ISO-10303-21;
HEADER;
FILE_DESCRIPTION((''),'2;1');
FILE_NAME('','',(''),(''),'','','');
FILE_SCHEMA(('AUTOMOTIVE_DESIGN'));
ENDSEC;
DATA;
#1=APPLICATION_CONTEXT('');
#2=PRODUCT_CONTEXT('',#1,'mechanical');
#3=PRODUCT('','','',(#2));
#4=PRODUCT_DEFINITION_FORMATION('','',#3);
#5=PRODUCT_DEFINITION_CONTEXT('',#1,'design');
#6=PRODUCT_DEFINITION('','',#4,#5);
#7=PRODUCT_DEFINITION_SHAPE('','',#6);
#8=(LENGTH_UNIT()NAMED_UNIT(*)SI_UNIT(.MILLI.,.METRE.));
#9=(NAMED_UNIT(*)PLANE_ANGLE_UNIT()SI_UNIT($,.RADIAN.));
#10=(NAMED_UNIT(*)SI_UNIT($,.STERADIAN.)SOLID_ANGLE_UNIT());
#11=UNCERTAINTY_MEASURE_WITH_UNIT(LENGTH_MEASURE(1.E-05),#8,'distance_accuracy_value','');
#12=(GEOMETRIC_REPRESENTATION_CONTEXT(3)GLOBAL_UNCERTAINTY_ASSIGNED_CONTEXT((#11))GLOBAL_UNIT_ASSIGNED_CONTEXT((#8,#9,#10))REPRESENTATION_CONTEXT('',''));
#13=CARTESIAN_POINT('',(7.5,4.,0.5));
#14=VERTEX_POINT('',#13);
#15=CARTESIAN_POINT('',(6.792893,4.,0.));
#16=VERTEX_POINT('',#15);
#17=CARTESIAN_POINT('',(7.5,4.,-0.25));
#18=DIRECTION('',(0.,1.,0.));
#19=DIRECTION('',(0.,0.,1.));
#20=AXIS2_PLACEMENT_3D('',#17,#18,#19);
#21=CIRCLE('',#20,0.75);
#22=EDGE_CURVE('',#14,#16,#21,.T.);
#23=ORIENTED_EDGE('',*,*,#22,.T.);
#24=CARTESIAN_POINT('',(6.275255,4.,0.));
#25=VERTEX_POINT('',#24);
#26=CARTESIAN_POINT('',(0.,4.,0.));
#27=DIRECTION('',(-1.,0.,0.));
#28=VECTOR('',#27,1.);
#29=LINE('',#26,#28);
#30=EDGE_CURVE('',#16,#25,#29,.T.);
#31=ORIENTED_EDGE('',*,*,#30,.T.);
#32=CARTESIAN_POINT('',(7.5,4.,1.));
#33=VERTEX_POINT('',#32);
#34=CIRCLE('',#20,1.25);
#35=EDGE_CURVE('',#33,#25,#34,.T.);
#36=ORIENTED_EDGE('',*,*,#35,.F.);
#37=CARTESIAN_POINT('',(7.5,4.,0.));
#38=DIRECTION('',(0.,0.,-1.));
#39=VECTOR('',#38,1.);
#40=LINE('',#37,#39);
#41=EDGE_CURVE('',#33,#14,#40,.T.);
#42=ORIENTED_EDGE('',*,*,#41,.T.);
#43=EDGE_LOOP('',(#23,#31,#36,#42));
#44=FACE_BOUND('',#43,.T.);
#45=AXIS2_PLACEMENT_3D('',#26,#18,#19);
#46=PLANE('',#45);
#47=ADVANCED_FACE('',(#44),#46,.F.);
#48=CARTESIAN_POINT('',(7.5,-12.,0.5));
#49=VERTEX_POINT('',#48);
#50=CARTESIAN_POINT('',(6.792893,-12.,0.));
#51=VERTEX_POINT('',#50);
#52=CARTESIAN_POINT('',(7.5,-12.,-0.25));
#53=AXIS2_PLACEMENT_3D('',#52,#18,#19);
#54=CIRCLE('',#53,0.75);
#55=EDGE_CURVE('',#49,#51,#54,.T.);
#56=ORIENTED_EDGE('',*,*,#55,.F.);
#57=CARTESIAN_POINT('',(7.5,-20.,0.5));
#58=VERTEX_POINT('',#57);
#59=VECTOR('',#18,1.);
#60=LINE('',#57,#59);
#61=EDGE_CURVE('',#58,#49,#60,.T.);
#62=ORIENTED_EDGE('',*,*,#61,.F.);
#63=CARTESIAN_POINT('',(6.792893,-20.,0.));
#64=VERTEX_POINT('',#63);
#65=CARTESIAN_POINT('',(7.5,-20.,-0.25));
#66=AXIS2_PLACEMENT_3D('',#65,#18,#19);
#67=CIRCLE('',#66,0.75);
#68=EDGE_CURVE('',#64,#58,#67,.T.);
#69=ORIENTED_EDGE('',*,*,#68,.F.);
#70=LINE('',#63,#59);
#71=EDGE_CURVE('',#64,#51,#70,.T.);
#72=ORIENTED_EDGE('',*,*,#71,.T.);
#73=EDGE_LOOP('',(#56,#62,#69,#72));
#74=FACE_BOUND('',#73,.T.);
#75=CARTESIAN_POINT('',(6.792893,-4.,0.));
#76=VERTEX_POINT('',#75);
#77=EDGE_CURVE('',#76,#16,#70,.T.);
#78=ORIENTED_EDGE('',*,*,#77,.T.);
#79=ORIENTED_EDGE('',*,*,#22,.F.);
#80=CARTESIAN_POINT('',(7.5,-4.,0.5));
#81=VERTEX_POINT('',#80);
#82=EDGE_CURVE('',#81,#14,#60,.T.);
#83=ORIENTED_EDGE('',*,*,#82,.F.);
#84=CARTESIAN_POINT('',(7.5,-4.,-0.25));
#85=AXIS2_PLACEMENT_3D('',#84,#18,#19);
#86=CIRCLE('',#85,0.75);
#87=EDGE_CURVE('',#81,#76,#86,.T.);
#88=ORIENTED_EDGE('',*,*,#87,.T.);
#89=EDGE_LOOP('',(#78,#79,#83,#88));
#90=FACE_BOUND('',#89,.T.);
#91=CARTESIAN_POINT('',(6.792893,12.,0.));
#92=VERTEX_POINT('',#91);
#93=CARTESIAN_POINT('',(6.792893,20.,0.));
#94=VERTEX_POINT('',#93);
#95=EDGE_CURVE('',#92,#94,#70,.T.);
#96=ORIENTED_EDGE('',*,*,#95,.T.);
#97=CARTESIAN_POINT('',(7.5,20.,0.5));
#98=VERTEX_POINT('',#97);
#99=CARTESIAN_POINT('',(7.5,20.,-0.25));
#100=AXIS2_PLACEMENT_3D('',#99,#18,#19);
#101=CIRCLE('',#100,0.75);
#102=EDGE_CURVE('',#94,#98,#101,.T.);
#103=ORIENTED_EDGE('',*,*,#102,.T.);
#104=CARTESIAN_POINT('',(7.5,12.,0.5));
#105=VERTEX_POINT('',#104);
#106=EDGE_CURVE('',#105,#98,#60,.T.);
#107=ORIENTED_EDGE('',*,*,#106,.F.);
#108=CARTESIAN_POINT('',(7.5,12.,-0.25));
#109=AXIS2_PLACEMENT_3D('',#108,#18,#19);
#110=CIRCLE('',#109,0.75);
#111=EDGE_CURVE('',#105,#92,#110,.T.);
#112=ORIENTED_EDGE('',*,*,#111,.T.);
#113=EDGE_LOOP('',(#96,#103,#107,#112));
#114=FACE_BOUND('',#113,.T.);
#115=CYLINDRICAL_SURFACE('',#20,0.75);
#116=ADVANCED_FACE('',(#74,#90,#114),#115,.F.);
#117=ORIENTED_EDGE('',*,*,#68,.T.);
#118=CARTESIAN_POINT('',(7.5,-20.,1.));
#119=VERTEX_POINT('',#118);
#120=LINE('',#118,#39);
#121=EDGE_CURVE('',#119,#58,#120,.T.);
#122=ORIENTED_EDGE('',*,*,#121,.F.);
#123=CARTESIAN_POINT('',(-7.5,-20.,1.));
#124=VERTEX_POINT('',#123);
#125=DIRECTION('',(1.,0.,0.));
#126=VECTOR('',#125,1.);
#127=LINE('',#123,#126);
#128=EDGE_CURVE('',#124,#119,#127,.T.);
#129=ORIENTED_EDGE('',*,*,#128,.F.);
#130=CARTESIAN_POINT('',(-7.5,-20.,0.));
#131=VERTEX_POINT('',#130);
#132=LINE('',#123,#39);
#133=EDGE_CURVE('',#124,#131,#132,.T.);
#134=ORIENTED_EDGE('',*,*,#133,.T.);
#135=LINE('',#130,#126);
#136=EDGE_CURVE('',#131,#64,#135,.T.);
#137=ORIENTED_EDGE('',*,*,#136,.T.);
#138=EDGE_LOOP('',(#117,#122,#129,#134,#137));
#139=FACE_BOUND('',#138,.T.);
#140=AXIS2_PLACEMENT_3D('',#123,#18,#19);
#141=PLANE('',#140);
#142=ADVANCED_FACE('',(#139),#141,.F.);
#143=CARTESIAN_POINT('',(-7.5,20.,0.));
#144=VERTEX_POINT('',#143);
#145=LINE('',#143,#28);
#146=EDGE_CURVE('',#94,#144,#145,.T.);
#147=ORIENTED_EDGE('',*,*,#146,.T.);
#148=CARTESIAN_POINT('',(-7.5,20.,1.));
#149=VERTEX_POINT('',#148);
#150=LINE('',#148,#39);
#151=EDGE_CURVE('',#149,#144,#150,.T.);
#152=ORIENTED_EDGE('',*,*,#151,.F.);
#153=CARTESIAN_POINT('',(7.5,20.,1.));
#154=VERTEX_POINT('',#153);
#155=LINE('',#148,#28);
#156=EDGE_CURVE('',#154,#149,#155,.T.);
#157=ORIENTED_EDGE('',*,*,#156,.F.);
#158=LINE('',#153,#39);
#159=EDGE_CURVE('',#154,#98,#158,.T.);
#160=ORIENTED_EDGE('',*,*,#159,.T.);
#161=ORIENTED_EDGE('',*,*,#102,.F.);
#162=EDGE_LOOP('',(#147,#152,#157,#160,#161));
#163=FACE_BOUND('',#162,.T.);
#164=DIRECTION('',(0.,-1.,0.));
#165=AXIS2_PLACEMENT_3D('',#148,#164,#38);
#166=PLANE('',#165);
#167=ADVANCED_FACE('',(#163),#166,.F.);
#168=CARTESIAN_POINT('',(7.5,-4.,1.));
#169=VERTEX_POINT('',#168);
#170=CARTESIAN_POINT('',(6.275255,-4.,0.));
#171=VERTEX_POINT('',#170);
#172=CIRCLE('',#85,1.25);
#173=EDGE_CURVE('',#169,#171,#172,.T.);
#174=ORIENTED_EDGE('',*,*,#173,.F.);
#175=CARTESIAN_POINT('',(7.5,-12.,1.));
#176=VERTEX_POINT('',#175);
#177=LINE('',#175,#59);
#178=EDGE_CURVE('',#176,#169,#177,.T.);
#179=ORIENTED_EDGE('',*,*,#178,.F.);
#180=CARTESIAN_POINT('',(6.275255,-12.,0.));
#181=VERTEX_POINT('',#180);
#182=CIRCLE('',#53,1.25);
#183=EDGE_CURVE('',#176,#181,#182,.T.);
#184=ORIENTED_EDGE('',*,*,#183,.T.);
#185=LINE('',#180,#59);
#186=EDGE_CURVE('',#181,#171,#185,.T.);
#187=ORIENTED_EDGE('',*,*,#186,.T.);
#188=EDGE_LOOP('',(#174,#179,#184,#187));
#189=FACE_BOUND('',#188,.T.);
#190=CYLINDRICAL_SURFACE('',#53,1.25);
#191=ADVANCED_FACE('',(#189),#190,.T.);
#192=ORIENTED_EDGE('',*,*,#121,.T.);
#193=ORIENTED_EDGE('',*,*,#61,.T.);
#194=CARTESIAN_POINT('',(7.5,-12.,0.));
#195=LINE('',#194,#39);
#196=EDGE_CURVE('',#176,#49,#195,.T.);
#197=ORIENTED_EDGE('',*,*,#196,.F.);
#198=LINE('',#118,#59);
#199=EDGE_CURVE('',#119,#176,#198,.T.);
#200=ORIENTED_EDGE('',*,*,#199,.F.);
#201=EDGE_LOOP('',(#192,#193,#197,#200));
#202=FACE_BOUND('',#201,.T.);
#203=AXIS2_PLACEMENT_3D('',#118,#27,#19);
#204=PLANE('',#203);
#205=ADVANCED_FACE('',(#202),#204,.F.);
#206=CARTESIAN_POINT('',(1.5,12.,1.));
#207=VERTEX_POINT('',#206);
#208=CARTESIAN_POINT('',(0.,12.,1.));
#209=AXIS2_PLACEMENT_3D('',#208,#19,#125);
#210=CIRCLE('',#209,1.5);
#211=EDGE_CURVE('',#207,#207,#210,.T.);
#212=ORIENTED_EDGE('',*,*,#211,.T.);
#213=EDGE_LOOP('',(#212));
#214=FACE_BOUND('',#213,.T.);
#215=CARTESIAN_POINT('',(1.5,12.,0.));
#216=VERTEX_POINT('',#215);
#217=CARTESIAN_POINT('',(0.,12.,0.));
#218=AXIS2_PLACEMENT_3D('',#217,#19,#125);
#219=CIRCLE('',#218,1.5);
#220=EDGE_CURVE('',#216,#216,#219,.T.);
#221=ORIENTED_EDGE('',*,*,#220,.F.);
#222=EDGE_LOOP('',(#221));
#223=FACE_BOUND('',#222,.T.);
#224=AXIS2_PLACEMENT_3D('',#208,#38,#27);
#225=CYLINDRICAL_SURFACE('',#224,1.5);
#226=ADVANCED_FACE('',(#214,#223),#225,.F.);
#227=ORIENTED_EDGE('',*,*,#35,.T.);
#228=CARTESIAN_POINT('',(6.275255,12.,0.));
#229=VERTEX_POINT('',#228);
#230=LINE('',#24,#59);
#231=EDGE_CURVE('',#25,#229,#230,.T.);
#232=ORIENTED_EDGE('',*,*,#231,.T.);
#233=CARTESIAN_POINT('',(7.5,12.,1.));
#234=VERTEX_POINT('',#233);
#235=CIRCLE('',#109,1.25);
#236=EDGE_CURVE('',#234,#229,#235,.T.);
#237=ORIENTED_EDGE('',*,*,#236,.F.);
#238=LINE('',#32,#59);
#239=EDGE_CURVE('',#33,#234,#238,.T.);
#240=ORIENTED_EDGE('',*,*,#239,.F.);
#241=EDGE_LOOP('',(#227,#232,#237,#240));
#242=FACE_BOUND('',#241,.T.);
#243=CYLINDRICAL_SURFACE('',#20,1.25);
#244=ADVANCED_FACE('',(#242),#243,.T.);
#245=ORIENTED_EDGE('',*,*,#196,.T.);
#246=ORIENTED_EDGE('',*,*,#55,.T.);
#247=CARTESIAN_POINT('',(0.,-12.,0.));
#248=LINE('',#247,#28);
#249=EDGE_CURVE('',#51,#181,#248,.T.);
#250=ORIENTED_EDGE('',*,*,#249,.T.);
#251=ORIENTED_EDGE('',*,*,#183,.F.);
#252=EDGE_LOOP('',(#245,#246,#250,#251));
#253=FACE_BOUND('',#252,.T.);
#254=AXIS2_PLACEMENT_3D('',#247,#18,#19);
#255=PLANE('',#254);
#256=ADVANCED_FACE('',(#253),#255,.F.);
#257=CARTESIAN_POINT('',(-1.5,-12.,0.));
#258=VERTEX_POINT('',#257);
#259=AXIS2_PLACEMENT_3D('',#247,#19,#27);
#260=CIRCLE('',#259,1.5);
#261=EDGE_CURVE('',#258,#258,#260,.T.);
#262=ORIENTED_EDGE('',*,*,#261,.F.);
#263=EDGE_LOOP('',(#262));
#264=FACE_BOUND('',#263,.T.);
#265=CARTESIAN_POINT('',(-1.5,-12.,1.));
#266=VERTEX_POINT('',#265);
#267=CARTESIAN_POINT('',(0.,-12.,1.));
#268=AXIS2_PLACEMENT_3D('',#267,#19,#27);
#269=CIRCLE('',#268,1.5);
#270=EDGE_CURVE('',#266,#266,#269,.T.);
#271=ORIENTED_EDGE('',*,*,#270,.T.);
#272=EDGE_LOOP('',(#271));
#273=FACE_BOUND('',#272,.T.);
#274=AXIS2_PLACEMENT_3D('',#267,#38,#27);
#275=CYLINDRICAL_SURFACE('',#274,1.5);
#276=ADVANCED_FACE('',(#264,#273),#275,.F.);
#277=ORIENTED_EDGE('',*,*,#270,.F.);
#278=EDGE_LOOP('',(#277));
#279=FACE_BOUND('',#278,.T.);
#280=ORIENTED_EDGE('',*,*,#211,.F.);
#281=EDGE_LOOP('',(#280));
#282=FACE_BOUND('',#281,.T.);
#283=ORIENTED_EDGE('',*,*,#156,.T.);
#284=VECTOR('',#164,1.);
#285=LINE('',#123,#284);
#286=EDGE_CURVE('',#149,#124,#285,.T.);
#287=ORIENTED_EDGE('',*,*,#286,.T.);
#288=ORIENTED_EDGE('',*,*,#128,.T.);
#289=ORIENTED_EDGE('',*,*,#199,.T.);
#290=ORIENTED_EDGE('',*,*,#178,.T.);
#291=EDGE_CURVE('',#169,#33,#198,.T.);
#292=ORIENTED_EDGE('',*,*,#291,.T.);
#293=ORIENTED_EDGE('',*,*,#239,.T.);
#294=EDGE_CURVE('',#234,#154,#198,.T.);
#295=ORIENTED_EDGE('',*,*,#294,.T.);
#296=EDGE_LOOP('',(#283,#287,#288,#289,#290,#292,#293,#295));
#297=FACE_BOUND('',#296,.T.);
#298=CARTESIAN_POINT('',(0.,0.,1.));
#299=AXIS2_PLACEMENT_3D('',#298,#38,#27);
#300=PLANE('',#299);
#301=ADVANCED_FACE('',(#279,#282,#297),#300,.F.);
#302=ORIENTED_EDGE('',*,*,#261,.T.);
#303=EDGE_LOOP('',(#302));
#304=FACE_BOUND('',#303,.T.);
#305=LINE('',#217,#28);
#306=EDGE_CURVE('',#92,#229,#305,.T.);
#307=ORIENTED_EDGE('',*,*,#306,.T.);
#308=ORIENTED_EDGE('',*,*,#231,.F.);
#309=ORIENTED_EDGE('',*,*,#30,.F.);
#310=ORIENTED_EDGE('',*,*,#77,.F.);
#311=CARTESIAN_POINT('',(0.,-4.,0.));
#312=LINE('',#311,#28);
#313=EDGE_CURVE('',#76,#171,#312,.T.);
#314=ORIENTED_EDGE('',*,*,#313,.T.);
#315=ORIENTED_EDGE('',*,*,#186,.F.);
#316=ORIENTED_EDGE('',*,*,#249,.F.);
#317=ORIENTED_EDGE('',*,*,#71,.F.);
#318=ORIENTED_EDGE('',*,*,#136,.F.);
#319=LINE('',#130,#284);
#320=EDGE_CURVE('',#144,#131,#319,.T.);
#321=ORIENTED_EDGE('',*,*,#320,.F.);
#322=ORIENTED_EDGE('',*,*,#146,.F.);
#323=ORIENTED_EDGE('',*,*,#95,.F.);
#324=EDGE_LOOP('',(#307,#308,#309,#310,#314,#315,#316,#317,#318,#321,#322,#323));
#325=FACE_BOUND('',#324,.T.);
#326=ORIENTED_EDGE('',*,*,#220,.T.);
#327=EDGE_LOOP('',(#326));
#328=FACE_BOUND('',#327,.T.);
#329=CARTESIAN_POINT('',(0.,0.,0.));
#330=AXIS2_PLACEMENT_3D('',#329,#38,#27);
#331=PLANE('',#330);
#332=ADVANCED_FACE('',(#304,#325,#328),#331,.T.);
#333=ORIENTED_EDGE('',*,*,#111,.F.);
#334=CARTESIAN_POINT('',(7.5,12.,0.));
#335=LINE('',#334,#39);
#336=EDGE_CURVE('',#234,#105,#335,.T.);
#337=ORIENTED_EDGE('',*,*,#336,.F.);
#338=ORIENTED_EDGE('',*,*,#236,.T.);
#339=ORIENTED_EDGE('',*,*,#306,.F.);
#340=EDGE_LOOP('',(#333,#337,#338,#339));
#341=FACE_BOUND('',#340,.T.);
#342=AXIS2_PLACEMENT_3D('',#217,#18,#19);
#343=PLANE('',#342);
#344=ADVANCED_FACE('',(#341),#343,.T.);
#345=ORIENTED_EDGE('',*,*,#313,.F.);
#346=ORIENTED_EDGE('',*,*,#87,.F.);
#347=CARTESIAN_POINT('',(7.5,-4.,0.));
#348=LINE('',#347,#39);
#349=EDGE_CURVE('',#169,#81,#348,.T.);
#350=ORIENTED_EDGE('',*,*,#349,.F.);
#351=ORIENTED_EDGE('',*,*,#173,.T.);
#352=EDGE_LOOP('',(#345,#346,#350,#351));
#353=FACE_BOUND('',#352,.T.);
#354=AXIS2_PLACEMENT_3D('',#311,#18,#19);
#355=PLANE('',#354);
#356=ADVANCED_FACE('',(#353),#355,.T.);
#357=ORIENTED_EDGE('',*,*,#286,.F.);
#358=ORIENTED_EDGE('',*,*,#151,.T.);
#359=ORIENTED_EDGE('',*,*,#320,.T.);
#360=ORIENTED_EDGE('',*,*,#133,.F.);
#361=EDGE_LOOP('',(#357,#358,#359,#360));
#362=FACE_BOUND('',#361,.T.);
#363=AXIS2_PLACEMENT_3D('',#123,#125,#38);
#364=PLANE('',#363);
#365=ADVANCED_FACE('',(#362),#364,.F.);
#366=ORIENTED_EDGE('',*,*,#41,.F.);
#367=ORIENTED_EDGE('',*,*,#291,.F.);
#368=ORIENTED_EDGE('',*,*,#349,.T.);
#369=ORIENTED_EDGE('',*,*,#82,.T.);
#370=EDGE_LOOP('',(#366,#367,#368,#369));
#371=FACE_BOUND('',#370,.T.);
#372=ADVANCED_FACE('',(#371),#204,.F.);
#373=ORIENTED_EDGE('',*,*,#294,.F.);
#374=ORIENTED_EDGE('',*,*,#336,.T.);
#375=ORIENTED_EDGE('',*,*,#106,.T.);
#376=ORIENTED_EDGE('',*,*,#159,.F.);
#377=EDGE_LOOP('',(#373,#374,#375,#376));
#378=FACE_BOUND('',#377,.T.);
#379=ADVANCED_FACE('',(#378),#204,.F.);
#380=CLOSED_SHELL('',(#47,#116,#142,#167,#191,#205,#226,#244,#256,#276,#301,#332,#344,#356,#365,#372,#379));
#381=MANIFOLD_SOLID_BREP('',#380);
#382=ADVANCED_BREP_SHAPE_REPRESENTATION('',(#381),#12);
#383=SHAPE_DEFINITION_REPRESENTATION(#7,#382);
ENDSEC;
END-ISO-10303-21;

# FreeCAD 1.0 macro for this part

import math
import FreeCAD as App
import Part
import Sketcher
from FreeCAD import Vector


def add_polygon(sketch, points):
    """Adds a closed chain of lines whose ends are joined by coincident constraints."""
    first, n = sketch.GeometryCount, len(points)
    for a, b in zip(points, points[1:] + points[:1]):
        sketch.addGeometry(Part.LineSegment(App.Vector(*a, 0), App.Vector(*b, 0)), False)
    for i in range(n):
        sketch.addConstraint(Sketcher.Constraint("Coincident", first + i, 2, first + (i + 1) % n, 1))

doc = App.newDocument("Part")
body = doc.addObject("PartDesign::Body", "Body")

sketch1 = body.newObject("Sketcher::SketchObject", "Sketch")
sketch1.AttachmentSupport = (doc.getObject("XY_Plane"), [""])
sketch1.MapMode = "FlatFace"
add_polygon(sketch1, [(-7.5, 20), (-7.5, -20), (7.5, -20), (7.5, 20)])
sketch1.addGeometry(Part.Circle(Vector(0, -12, 0), Vector(0, 0, 1), 1.5), False)
sketch1.addGeometry(Part.Circle(Vector(0, 12, 0), Vector(0, 0, 1), 1.5), False)
sketch1.addConstraint([
    Sketcher.Constraint("Vertical", 0),
    Sketcher.Constraint("Horizontal", 1),
    Sketcher.Constraint("Vertical", 2),
    Sketcher.Constraint("Horizontal", 3),
    Sketcher.Constraint("Equal", 4, 5),
    Sketcher.Constraint("Symmetric", 4, 3, 5, 3, -1, 1),
    Sketcher.Constraint("Symmetric", 0, 2, 2, 2, -1, 1),
    Sketcher.Constraint("PointOnObject", 4, 3, -2),
    Sketcher.Constraint("Diameter", 4, 3.0),
    Sketcher.Constraint("DistanceX", 1, 1, 1, 2, 15.0),
    Sketcher.Constraint("DistanceY", 0, 2, 0, 1, 40.0),
    Sketcher.Constraint("DistanceY", 4, 3, -1, 1, 12.0),
])
pad1 = body.newObject("PartDesign::Pad", "Pad")
pad1.Profile = sketch1
pad1.Length = 1

sketch2 = body.newObject("Sketcher::SketchObject", "Sketch001")
sketch2.AttachmentSupport = (doc.getObject("XZ_Plane"), [""])
sketch2.MapMode = "FlatFace"
sketch2.AttachmentOffset = App.Placement(Vector(0, 0, -12), App.Rotation())
sketch2.addGeometry([
    Part.ArcOfCircle(Part.Circle(Vector(7.5, -0.3, 0), Vector(0, 0, 1), 1.3), math.radians(0), math.radians(90)),
    Part.ArcOfCircle(Part.Circle(Vector(7.5, -0.2, 0), Vector(0, 0, 1), 1.2), math.radians(168), math.radians(360)),
    Part.ArcOfCircle(Part.Circle(Vector(7.5, -0.2, 0), Vector(0, 0, 1), 1.2), math.radians(90), math.radians(168)),
    Part.ArcOfCircle(Part.Circle(Vector(7.5, -0.2, 0), Vector(0, 0, 1), 0.8), math.radians(161), math.radians(360)),
    Part.ArcOfCircle(Part.Circle(Vector(7.5, -0.2, 0), Vector(0, 0, 1), 0.8), math.radians(0), math.radians(90)),
    Part.ArcOfCircle(Part.Circle(Vector(7.5, -0.2, 0), Vector(0, 0, 1), 0.7), math.radians(90), math.radians(161)),
], False)
sketch2.addConstraint([
    Sketcher.Constraint("Tangent", 0, 1, 1, 2),
    Sketcher.Constraint("Tangent", 1, 1, 2, 2),
    Sketcher.Constraint("Tangent", 2, 1, 0, 2),
    Sketcher.Constraint("Tangent", 3, 2, 4, 1),
    Sketcher.Constraint("Tangent", 4, 2, 5, 1),
    Sketcher.Constraint("Tangent", 5, 2, 3, 1),
    Sketcher.Constraint("Coincident", 3, 3, 0, 3),
    Sketcher.Constraint("PointOnObject", 1, 1, -1),
    Sketcher.Constraint("PointOnObject", 5, 2, -1),
    Sketcher.Constraint("Horizontal", 5, 3, 0, 1),
    Sketcher.Constraint("Horizontal", 0, 1, 3, 2),
    Sketcher.Constraint("Vertical", 5, 3, 2, 1),
    Sketcher.Constraint("Vertical", 2, 1, 4, 2),
    Sketcher.Constraint("Radius", 0, 1.25),
    Sketcher.Constraint("Radius", 3, 0.75),
    Sketcher.Constraint("DistanceY", -1, 1, 2, 1, 1.0),
    Sketcher.Constraint("DistanceX", -1, 1, 0, 3, 7.5),
])
pad2 = body.newObject("PartDesign::Pad", "Pad001")
pad2.Profile = sketch2
pad2.Length = 8
doc.recompute()

linearpattern = body.newObject("PartDesign::LinearPattern", "LinearPattern")
linearpattern.Originals = [pad2]
linearpattern.Direction = (doc.getObject("Y_Axis"), [""])
linearpattern.Mode = "offset"
linearpattern.Offset = 16
linearpattern.Occurrences = 2
linearpattern.Reversed = True
body.Tip = linearpattern

sketch3 = body.newObject("Sketcher::SketchObject", "Sketch002")
sketch3.AttachmentSupport = (doc.getObject("XZ_Plane"), [""])
sketch3.MapMode = "FlatFace"
sketch3.AttachmentOffset = App.Placement(Vector(0, 0, -20), App.Rotation())
sketch3.addGeometry(Part.Circle(Vector(7.5, -0.2, 0), Vector(0, 0, 1), 0.8), False)
sketch3.addConstraint([
    Sketcher.Constraint("Diameter", 0, 1.5),
    Sketcher.Constraint("DistanceX", -1, 1, 0, 3, 7.5),
    Sketcher.Constraint("DistanceY", 0, 3, -1, 1, 0.25),
])
pocket1 = body.newObject("PartDesign::Pocket", "Pocket")
pocket1.Profile = sketch3
pocket1.Length = 40
pocket1.Reversed = True

doc.recompute()
